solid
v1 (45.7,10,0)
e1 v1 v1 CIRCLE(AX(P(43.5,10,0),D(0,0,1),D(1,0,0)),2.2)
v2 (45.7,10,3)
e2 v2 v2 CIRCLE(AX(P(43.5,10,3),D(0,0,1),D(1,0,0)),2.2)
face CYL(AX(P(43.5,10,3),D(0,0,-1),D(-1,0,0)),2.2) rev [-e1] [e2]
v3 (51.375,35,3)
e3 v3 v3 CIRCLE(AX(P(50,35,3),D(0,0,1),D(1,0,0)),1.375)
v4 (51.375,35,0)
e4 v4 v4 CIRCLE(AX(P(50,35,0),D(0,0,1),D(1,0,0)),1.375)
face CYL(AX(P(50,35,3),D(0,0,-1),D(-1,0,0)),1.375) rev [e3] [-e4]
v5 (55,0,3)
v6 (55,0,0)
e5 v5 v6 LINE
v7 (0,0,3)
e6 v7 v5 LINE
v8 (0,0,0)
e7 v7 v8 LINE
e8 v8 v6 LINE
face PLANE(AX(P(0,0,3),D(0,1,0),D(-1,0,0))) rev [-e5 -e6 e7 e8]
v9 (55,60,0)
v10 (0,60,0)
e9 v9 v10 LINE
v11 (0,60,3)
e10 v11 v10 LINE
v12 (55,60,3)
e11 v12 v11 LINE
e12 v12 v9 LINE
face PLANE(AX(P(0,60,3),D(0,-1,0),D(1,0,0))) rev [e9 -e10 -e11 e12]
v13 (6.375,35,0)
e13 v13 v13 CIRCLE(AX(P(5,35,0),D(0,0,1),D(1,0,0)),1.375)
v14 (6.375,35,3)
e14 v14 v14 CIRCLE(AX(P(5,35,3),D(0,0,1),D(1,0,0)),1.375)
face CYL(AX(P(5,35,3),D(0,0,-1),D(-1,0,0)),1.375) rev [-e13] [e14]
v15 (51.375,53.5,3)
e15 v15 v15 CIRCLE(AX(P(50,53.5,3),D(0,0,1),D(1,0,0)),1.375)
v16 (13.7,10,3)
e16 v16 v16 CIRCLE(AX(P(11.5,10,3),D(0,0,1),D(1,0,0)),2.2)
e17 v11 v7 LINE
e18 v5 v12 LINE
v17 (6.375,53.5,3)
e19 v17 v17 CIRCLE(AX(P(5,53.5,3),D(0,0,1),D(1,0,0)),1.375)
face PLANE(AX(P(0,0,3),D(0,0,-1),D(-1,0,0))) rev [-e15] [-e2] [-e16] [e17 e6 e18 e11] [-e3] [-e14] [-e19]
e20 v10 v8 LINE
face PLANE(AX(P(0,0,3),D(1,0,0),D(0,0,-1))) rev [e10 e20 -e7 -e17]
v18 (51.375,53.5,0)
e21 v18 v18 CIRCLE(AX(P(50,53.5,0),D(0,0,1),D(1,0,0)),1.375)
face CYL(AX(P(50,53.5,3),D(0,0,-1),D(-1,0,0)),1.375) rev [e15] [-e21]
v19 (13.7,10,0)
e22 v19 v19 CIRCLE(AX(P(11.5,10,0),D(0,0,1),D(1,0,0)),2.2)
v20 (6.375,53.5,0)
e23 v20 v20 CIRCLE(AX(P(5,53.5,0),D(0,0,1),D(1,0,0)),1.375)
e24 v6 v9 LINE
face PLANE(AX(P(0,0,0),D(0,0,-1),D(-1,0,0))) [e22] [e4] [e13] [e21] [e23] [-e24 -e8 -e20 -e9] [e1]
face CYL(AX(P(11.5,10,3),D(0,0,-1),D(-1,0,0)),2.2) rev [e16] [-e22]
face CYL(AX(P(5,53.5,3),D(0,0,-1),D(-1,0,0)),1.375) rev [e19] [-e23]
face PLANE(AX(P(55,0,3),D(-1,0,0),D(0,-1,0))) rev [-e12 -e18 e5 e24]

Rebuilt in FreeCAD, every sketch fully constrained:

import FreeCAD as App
import Part
import Sketcher

V = App.Vector


def add_polygon(sketch, points):
    """Adds a closed chain of lines whose ends are joined by coincident constraints."""
    first, n = sketch.GeometryCount, len(points)
    for a, b in zip(points, points[1:] + points[:1]):
        sketch.addGeometry(Part.LineSegment(App.Vector(*a, 0), App.Vector(*b, 0)), False)
    for i in range(n):
        sketch.addConstraint(Sketcher.Constraint("Coincident", first + i, 2, first + (i + 1) % n, 1))

doc = App.newDocument("Part")
body = doc.addObject("PartDesign::Body", "Body")

# Sketch on XY plane
sketch1 = body.newObject("Sketcher::SketchObject", "Sketch")
sketch1.AttachmentSupport = (doc.getObject("XY_Plane"), [""])
sketch1.MapMode = "FlatFace"
add_polygon(sketch1, [(0, 60), (0, 0), (55, 0), (55, 60)])  # lines 0-3
sketch1.addGeometry(Part.Circle(V(11.5, 10, 0), V(0, 0, 1), 2.2), False)  # 4
sketch1.addGeometry(Part.Circle(V(43.5, 10, 0), V(0, 0, 1), 2.2), False)  # 5
sketch1.addGeometry(Part.Circle(V(5, 35, 0), V(0, 0, 1), 1.375), False)  # 6
sketch1.addGeometry(Part.Circle(V(5, 53.5, 0), V(0, 0, 1), 1.375), False)  # 7
sketch1.addGeometry(Part.Circle(V(50, 35, 0), V(0, 0, 1), 1.375), False)  # 8
sketch1.addGeometry(Part.Circle(V(50, 53.5, 0), V(0, 0, 1), 1.375), False)  # 9
sketch1.addConstraint([
    Sketcher.Constraint("Vertical", 0),
    Sketcher.Constraint("Horizontal", 1),
    Sketcher.Constraint("Vertical", 2),
    Sketcher.Constraint("Horizontal", 3),
    Sketcher.Constraint("Coincident", 0, 2, -1, 1),
    Sketcher.Constraint("Equal", 4, 5),
    Sketcher.Constraint("Equal", 6, 7),
    Sketcher.Constraint("Equal", 7, 8),
    Sketcher.Constraint("Equal", 8, 9),
    Sketcher.Constraint("Horizontal", 4, 3, 5, 3),
    Sketcher.Constraint("Horizontal", 6, 3, 8, 3),
    Sketcher.Constraint("Horizontal", 7, 3, 9, 3),
    Sketcher.Constraint("Vertical", 6, 3, 7, 3),
    Sketcher.Constraint("Vertical", 8, 3, 9, 3),
    Sketcher.Constraint("Diameter", 4, 4.4),
    Sketcher.Constraint("Diameter", 6, 2.75),
    Sketcher.Constraint("DistanceX", 1, 1, 1, 2, 55.0),
    Sketcher.Constraint("DistanceY", 0, 2, 0, 1, 60.0),
    Sketcher.Constraint("DistanceY", -1, 1, 4, 3, 10.0),
    Sketcher.Constraint("DistanceX", -1, 1, 6, 3, 5.0),
    Sketcher.Constraint("DistanceY", -1, 1, 6, 3, 35.0),
    Sketcher.Constraint("DistanceX", -1, 1, 8, 3, 50.0),
    Sketcher.Constraint("DistanceX", 4, 3, 5, 3, 32.0),
    Sketcher.Constraint("DistanceX", -1, 1, 4, 3, 11.5),
    Sketcher.Constraint("DistanceY", -1, 1, 7, 3, 53.5),
])
pad1 = body.newObject("PartDesign::Pad", "Pad")
pad1.Profile = sketch1
pad1.Length = 3

doc.recompute()
